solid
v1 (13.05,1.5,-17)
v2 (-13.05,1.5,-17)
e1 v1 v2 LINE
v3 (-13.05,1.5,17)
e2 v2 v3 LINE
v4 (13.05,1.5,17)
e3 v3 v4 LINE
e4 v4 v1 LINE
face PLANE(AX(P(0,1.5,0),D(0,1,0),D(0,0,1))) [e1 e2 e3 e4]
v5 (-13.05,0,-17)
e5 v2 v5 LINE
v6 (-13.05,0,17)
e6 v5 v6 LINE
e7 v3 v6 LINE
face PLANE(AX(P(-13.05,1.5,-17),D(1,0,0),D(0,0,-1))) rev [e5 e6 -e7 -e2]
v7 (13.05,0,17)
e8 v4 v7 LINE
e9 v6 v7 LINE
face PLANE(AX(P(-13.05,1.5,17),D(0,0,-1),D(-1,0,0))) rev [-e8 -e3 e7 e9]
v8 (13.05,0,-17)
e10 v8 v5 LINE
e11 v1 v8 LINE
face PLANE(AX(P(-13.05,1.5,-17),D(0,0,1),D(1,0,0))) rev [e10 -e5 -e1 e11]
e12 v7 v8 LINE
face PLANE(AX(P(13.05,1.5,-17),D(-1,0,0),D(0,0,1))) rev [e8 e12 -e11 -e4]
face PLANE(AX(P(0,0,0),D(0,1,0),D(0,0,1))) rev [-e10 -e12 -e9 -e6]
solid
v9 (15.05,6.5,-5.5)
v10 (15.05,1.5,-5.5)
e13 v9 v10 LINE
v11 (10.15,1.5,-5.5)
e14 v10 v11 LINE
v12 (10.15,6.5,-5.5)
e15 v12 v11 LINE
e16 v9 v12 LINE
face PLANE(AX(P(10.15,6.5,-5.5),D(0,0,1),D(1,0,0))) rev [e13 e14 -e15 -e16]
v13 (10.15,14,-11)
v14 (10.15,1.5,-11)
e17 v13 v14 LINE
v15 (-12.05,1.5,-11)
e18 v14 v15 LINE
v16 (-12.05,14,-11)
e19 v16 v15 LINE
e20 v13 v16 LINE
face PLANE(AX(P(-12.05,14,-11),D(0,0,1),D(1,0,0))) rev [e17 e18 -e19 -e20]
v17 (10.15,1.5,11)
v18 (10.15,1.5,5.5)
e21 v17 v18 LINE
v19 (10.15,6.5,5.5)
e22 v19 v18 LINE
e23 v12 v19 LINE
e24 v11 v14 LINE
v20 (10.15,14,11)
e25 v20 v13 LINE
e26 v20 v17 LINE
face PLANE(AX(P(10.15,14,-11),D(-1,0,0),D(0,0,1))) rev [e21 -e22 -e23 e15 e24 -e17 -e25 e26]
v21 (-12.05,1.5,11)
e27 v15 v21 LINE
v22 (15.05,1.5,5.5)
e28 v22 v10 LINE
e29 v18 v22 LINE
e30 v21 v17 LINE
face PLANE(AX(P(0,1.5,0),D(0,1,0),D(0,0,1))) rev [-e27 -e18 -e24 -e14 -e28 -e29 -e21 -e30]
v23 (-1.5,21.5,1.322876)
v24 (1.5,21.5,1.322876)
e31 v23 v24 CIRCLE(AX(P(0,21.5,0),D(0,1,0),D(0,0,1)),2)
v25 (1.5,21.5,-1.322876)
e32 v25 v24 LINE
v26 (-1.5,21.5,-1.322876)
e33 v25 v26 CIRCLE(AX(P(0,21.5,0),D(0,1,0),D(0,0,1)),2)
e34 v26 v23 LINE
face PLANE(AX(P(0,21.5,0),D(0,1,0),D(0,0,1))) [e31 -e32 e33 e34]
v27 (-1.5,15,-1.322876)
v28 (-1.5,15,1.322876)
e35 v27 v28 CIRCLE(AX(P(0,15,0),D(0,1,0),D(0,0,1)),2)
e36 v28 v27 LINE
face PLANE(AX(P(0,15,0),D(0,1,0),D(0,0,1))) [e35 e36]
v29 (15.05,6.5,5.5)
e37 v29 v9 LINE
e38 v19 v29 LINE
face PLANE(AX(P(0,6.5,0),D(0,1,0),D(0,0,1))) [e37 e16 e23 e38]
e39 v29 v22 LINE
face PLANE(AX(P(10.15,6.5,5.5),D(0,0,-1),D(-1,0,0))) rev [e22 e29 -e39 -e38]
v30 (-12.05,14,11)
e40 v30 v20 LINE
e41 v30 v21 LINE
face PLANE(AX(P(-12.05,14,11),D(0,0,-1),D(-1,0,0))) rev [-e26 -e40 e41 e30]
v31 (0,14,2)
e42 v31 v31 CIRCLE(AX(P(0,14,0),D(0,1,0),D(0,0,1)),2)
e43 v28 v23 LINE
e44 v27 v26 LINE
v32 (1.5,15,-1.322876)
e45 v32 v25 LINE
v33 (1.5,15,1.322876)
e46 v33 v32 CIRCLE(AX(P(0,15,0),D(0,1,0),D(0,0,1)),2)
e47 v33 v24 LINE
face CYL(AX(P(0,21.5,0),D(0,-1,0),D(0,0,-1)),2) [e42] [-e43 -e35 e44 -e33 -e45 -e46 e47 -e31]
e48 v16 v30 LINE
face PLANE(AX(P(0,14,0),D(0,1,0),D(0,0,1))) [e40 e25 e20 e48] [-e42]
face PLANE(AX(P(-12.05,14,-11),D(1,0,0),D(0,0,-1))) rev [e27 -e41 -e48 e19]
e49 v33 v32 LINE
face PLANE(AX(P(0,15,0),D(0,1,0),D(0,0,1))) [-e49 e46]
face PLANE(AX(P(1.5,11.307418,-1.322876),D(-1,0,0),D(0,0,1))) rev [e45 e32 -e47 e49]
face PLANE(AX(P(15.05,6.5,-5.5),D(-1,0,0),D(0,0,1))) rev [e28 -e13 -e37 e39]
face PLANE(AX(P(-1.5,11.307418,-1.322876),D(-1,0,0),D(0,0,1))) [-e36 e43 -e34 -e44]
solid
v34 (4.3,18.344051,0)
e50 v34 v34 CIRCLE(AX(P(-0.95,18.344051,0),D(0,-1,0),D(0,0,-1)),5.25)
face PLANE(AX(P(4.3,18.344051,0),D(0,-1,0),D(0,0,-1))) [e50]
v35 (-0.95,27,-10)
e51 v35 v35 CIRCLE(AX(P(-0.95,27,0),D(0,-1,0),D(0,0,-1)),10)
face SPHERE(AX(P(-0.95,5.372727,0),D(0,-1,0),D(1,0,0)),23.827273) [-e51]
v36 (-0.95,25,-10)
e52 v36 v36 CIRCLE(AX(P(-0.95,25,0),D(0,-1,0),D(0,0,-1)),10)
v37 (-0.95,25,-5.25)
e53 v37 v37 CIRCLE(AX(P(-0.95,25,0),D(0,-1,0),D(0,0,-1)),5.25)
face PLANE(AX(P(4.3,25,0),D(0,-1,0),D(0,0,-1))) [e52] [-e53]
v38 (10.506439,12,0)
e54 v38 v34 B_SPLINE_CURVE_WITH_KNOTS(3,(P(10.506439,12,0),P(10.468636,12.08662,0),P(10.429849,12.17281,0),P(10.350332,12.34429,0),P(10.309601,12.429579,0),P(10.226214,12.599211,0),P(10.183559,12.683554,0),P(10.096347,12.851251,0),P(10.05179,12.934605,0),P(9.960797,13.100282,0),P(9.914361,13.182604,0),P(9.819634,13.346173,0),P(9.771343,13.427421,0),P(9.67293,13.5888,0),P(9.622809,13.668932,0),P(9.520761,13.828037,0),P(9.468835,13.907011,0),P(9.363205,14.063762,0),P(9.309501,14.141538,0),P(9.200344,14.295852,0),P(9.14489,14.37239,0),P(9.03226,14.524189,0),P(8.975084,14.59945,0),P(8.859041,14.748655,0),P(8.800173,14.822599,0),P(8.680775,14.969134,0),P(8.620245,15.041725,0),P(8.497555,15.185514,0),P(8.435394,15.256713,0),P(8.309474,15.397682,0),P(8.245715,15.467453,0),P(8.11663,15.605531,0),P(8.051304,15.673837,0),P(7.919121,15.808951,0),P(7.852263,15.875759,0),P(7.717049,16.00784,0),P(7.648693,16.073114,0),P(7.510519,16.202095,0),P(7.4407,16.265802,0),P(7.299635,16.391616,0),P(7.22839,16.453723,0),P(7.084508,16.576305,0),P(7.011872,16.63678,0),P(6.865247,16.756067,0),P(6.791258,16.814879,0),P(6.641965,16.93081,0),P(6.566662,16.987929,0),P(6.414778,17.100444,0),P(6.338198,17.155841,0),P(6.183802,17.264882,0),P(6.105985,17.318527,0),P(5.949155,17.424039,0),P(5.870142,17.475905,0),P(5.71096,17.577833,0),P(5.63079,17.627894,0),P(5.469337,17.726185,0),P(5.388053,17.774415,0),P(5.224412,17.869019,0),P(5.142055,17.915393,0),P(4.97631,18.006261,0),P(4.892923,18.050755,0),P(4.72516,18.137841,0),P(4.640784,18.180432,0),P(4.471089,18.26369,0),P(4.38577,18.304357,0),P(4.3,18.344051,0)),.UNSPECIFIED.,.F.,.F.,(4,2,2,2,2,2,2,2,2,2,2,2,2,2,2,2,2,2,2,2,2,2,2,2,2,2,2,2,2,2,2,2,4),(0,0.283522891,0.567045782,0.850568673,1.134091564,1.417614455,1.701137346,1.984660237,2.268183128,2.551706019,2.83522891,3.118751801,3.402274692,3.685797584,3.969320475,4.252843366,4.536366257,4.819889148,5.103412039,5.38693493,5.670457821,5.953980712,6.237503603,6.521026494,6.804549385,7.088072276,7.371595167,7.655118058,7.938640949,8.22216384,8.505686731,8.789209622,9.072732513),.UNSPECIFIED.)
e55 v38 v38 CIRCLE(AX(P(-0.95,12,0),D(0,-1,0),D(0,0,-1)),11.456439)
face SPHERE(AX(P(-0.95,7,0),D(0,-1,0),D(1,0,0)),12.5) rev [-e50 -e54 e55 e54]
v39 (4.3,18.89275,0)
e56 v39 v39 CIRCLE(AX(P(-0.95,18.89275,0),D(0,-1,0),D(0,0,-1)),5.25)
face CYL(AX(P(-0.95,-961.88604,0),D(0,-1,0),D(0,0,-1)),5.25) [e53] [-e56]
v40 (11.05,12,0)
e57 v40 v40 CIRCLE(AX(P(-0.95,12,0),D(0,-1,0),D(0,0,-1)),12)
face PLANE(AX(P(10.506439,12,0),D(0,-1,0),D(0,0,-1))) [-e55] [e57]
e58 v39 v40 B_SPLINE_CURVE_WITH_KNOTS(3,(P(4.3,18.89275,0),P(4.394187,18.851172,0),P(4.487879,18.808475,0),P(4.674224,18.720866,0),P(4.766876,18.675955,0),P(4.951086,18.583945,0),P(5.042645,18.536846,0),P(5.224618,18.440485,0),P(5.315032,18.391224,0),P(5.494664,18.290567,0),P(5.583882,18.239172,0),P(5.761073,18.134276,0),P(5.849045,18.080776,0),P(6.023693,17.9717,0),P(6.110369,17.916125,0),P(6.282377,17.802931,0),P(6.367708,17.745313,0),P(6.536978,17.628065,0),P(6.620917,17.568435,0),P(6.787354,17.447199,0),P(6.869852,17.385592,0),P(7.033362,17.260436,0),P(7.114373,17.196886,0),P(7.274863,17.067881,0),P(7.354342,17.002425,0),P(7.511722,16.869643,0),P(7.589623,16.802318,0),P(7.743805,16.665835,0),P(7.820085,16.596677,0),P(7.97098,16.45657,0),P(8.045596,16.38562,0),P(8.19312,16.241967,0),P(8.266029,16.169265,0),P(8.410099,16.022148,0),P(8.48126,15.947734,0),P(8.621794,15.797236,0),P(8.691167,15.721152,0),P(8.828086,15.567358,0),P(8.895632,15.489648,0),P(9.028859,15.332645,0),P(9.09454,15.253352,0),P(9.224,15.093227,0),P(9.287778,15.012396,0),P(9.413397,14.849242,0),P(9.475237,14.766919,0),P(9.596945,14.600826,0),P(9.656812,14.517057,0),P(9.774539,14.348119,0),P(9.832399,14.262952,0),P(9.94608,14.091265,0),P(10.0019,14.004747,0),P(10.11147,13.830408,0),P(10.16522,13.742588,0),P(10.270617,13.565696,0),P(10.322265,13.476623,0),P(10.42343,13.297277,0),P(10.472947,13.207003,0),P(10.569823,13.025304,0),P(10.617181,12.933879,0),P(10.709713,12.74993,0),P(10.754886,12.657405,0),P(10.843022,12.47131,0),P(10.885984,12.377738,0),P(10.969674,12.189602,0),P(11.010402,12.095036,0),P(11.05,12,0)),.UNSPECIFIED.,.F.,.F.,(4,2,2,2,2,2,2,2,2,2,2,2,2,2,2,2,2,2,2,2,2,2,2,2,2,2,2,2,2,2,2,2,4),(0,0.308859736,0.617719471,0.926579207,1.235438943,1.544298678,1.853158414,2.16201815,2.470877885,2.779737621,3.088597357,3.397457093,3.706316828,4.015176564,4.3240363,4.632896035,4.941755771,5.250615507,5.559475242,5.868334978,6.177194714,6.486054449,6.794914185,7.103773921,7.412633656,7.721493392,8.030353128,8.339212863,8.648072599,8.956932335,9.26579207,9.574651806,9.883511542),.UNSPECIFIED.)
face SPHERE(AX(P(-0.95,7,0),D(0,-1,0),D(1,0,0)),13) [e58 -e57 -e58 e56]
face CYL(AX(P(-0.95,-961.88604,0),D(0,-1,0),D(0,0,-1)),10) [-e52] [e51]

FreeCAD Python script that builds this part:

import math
import FreeCAD as App
import Part
import Sketcher

V = App.Vector
Q = App.Units.Quantity


def add_polygon(sketch, points):
    """Adds a closed chain of lines whose ends are joined by coincident constraints."""
    first, n = sketch.GeometryCount, len(points)
    for a, b in zip(points, points[1:] + points[:1]):
        sketch.addGeometry(Part.LineSegment(App.Vector(*a, 0), App.Vector(*b, 0)), False)
    for i in range(n):
        sketch.addConstraint(Sketcher.Constraint("Coincident", first + i, 2, first + (i + 1) % n, 1))

doc = App.newDocument("Part")
body = doc.addObject("PartDesign::Body", "Body")

# Sketch on XZ plane
sketch1 = body.newObject("Sketcher::SketchObject", "Sketch")
sketch1.AttachmentSupport = (doc.getObject("XZ_Plane"), [""])
sketch1.MapMode = "FlatFace"
add_polygon(sketch1, [(-13.05, -17), (-13.05, 17), (13.05, 17), (13.05, -17)])  # lines 0-3
sketch1.addConstraint([
    Sketcher.Constraint("Vertical", 0),
    Sketcher.Constraint("Horizontal", 1),
    Sketcher.Constraint("Vertical", 2),
    Sketcher.Constraint("Horizontal", 3),
    Sketcher.Constraint("Symmetric", 0, 2, 2, 2, -1, 1),
    Sketcher.Constraint("DistanceY", 0, 1, 0, 2, Q("34 mm")),
    Sketcher.Constraint("DistanceX", 1, 1, 1, 2, Q("26.1 mm")),
])
pad1 = body.newObject("PartDesign::Pad", "Pad")
pad1.Profile = sketch1
pad1.Length = 1.5
pad1.Reversed = True
body2 = doc.addObject("PartDesign::Body", "Body001")

# Sketch on XZ plane
sketch2 = body2.newObject("Sketcher::SketchObject", "Sketch001")
sketch2.AttachmentSupport = (doc.getObject("XZ_Plane001"), [""])
sketch2.MapMode = "FlatFace"
sketch2.AttachmentOffset = App.Placement(V(0, 0, -1.5), App.Rotation())
add_polygon(sketch2, [(-12.05, -11), (-12.05, 11), (10.15, 11), (10.15, -11)])  # lines 0-3
sketch2.addConstraint([
    Sketcher.Constraint("Vertical", 0),
    Sketcher.Constraint("Horizontal", 1),
    Sketcher.Constraint("Vertical", 2),
    Sketcher.Constraint("Horizontal", 3),
    Sketcher.Constraint("DistanceY", 0, 1, 0, 2, Q("22 mm")),
    Sketcher.Constraint("DistanceX", 1, 1, 1, 2, Q("22.2 mm")),
    Sketcher.Constraint("DistanceY", -1, 1, 0, 2, Q("11 mm")),
    Sketcher.Constraint("DistanceX", 0, 2, -1, 1, Q("12.05 mm")),
])
pad2 = body2.newObject("PartDesign::Pad", "Pad001")
pad2.Profile = sketch2
pad2.Length = 12.5
pad2.Reversed = True

# Sketch on XZ plane
sketch3 = body2.newObject("Sketcher::SketchObject", "Sketch002")
sketch3.AttachmentSupport = (doc.getObject("XZ_Plane001"), [""])
sketch3.MapMode = "FlatFace"
sketch3.AttachmentOffset = App.Placement(V(0, 0, -1.5), App.Rotation())
add_polygon(sketch3, [(10.15, -5.5), (10.15, 5.5), (15.05, 5.5), (15.05, -5.5)])  # lines 0-3
sketch3.addConstraint([
    Sketcher.Constraint("Vertical", 0),
    Sketcher.Constraint("Horizontal", 1),
    Sketcher.Constraint("Vertical", 2),
    Sketcher.Constraint("Horizontal", 3),
    Sketcher.Constraint("DistanceY", 0, 1, 0, 2, Q("11 mm")),
    Sketcher.Constraint("DistanceX", 1, 1, 1, 2, Q("4.9 mm")),
    Sketcher.Constraint("DistanceY", -1, 1, 0, 2, Q("5.5 mm")),
    Sketcher.Constraint("DistanceX", -1, 1, 0, 2, Q("10.15 mm")),
])
pad3 = body2.newObject("PartDesign::Pad", "Pad002")
pad3.Profile = sketch3
pad3.Length = 5
pad3.Reversed = True

# Sketch on XZ plane
sketch4 = body2.newObject("Sketcher::SketchObject", "Sketch003")
sketch4.AttachmentSupport = (doc.getObject("XZ_Plane001"), [""])
sketch4.MapMode = "FlatFace"
sketch4.AttachmentOffset = App.Placement(V(0, 0, -14), App.Rotation())
sketch4.addGeometry(Part.Circle(V(0, 0, 0), V(0, 0, 1), 2), False)
sketch4.addConstraint([
    Sketcher.Constraint("Coincident", 0, 3, -1, 1),
    Sketcher.Constraint("Diameter", 0, Q("4 mm")),
])
pad4 = body2.newObject("PartDesign::Pad", "Pad003")
pad4.Profile = sketch4
pad4.Length = 7.5
pad4.Reversed = True

# Sketch on XZ plane
sketch5 = body2.newObject("Sketcher::SketchObject", "Sketch004")
sketch5.AttachmentSupport = (doc.getObject("XZ_Plane001"), [""])
sketch5.MapMode = "FlatFace"
sketch5.AttachmentOffset = App.Placement(V(0, 0, -21.5), App.Rotation())
add_polygon(sketch5, [(1.5, -1.322876), (1.5, 1.322876), (2, 1.322876), (2, -1.322876)])  # lines 0-3
sketch5.addConstraint([
    Sketcher.Constraint("Vertical", 0),
    Sketcher.Constraint("Horizontal", 1),
    Sketcher.Constraint("Vertical", 2),
    Sketcher.Constraint("Horizontal", 3),
    Sketcher.Constraint("DistanceX", 1, 1, 1, 2, Q("0.5 mm")),
    Sketcher.Constraint("DistanceX", -1, 1, 1, 2, Q("2 mm")),
    Sketcher.Constraint("DistanceY", 0, 1, 0, 2, Q("2.645751 mm")),
    Sketcher.Constraint("DistanceY", -1, 1, 0, 2, Q("1.322876 mm")),
])
pocket1 = body2.newObject("PartDesign::Pocket", "Pocket")
pocket1.Profile = sketch5
pocket1.Length = 6.5
pocket1.Reversed = True
doc.recompute()

mirrored = body2.newObject("PartDesign::Mirrored", "Mirrored")
mirrored.Originals = [pocket1]
mirrored.MirrorPlane = (doc.getObject("YZ_Plane001"), [""])
body2.Tip = mirrored
body3 = doc.addObject("PartDesign::Body", "Body002")

# Sketch on XY plane
sketch6 = body3.newObject("Sketcher::SketchObject", "Sketch005")
sketch6.AttachmentSupport = (doc.getObject("XY_Plane002"), [""])
sketch6.MapMode = "FlatFace"
sketch6.addGeometry([
    Part.LineSegment(V(-0.95, 29.2, 0), V(-0.95, 18.344051, 0)),  # 0
    Part.LineSegment(V(-0.95, 18.344051, 0), V(4.3, 18.344051, 0)),  # 1
    Part.ArcOfCircle(Part.Circle(V(-0.95, 7, 0), V(0, 0, 1), 12.5), math.radians(23.578178), math.radians(65.165413)),  # 2
    Part.LineSegment(V(10.506439, 12, 0), V(11.05, 12, 0)),  # 3
    Part.ArcOfCircle(Part.Circle(V(-0.95, 7, 0), V(0, 0, 1), 13), math.radians(22.619865), math.radians(66.181159)),  # 4
    Part.LineSegment(V(4.3, 18.89275, 0), V(4.3, 25, 0)),  # 5
    Part.LineSegment(V(4.3, 25, 0), V(9.05, 25, 0)),  # 6
    Part.LineSegment(V(9.05, 25, 0), V(9.05, 27, 0)),  # 7
    Part.ArcOfCircle(Part.Circle(V(-0.95, 5.372727, 0), V(0, 0, 1), 23.827273), math.radians(65.185163), math.radians(90)),  # 8
], False)
sketch6.addGeometry(Part.LineSegment(V(-0.95, 5.372727, 0), V(-0.95, 29.2, 0)), True)  # axis
sketch6.addConstraint([
    Sketcher.Constraint("Coincident", 0, 2, 1, 1),
    Sketcher.Constraint("Coincident", 1, 2, 2, 2),
    Sketcher.Constraint("Coincident", 2, 1, 3, 1),
    Sketcher.Constraint("Coincident", 3, 2, 4, 1),
    Sketcher.Constraint("Coincident", 4, 2, 5, 1),
    Sketcher.Constraint("Coincident", 5, 2, 6, 1),
    Sketcher.Constraint("Coincident", 6, 2, 7, 1),
    Sketcher.Constraint("Coincident", 7, 2, 8, 1),
    Sketcher.Constraint("Coincident", 8, 2, 0, 1),
    Sketcher.Constraint("Vertical", 0),
    Sketcher.Constraint("Horizontal", 1),
    Sketcher.Constraint("Horizontal", 3),
    Sketcher.Constraint("Vertical", 5),
    Sketcher.Constraint("Horizontal", 6),
    Sketcher.Constraint("Vertical", 7),
    Sketcher.Constraint("Vertical", 9),
    Sketcher.Constraint("Coincident", 4, 3, 2, 3),
    Sketcher.Constraint("Coincident", 9, 1, 8, 3),
    Sketcher.Constraint("Coincident", 9, 2, 8, 2),
    Sketcher.Constraint("Vertical", 4, 3, 8, 3),
    Sketcher.Constraint("Vertical", 1, 2, 4, 2),
    Sketcher.Constraint("Radius", 4, Q("13 mm")),
    Sketcher.Constraint("Radius", 2, Q("12.5 mm")),
    Sketcher.Constraint("DistanceY", 7, 1, 7, 2, Q("2 mm")),
    Sketcher.Constraint("DistanceY", -1, 1, 2, 3, Q("7 mm")),
    Sketcher.Constraint("DistanceY", -1, 1, 2, 1, Q("12 mm")),
    Sketcher.Constraint("DistanceY", -1, 1, 5, 2, Q("25 mm")),
    Sketcher.Constraint("DistanceX", 0, 2, 6, 2, Q("10 mm")),
    Sketcher.Constraint("DistanceX", 1, 1, 1, 2, Q("5.25 mm")),
    Sketcher.Constraint("DistanceX", -1, 1, 1, 2, Q("4.3 mm")),
    Sketcher.Constraint("DistanceY", -1, 1, 8, 2, Q("29.2 mm")),
])
revolution = body3.newObject("PartDesign::Revolution", "Revolution")
revolution.Profile = sketch6
revolution.ReferenceAxis = (sketch6, ["Axis0"])
revolution.Angle = 360

doc.recompute()
